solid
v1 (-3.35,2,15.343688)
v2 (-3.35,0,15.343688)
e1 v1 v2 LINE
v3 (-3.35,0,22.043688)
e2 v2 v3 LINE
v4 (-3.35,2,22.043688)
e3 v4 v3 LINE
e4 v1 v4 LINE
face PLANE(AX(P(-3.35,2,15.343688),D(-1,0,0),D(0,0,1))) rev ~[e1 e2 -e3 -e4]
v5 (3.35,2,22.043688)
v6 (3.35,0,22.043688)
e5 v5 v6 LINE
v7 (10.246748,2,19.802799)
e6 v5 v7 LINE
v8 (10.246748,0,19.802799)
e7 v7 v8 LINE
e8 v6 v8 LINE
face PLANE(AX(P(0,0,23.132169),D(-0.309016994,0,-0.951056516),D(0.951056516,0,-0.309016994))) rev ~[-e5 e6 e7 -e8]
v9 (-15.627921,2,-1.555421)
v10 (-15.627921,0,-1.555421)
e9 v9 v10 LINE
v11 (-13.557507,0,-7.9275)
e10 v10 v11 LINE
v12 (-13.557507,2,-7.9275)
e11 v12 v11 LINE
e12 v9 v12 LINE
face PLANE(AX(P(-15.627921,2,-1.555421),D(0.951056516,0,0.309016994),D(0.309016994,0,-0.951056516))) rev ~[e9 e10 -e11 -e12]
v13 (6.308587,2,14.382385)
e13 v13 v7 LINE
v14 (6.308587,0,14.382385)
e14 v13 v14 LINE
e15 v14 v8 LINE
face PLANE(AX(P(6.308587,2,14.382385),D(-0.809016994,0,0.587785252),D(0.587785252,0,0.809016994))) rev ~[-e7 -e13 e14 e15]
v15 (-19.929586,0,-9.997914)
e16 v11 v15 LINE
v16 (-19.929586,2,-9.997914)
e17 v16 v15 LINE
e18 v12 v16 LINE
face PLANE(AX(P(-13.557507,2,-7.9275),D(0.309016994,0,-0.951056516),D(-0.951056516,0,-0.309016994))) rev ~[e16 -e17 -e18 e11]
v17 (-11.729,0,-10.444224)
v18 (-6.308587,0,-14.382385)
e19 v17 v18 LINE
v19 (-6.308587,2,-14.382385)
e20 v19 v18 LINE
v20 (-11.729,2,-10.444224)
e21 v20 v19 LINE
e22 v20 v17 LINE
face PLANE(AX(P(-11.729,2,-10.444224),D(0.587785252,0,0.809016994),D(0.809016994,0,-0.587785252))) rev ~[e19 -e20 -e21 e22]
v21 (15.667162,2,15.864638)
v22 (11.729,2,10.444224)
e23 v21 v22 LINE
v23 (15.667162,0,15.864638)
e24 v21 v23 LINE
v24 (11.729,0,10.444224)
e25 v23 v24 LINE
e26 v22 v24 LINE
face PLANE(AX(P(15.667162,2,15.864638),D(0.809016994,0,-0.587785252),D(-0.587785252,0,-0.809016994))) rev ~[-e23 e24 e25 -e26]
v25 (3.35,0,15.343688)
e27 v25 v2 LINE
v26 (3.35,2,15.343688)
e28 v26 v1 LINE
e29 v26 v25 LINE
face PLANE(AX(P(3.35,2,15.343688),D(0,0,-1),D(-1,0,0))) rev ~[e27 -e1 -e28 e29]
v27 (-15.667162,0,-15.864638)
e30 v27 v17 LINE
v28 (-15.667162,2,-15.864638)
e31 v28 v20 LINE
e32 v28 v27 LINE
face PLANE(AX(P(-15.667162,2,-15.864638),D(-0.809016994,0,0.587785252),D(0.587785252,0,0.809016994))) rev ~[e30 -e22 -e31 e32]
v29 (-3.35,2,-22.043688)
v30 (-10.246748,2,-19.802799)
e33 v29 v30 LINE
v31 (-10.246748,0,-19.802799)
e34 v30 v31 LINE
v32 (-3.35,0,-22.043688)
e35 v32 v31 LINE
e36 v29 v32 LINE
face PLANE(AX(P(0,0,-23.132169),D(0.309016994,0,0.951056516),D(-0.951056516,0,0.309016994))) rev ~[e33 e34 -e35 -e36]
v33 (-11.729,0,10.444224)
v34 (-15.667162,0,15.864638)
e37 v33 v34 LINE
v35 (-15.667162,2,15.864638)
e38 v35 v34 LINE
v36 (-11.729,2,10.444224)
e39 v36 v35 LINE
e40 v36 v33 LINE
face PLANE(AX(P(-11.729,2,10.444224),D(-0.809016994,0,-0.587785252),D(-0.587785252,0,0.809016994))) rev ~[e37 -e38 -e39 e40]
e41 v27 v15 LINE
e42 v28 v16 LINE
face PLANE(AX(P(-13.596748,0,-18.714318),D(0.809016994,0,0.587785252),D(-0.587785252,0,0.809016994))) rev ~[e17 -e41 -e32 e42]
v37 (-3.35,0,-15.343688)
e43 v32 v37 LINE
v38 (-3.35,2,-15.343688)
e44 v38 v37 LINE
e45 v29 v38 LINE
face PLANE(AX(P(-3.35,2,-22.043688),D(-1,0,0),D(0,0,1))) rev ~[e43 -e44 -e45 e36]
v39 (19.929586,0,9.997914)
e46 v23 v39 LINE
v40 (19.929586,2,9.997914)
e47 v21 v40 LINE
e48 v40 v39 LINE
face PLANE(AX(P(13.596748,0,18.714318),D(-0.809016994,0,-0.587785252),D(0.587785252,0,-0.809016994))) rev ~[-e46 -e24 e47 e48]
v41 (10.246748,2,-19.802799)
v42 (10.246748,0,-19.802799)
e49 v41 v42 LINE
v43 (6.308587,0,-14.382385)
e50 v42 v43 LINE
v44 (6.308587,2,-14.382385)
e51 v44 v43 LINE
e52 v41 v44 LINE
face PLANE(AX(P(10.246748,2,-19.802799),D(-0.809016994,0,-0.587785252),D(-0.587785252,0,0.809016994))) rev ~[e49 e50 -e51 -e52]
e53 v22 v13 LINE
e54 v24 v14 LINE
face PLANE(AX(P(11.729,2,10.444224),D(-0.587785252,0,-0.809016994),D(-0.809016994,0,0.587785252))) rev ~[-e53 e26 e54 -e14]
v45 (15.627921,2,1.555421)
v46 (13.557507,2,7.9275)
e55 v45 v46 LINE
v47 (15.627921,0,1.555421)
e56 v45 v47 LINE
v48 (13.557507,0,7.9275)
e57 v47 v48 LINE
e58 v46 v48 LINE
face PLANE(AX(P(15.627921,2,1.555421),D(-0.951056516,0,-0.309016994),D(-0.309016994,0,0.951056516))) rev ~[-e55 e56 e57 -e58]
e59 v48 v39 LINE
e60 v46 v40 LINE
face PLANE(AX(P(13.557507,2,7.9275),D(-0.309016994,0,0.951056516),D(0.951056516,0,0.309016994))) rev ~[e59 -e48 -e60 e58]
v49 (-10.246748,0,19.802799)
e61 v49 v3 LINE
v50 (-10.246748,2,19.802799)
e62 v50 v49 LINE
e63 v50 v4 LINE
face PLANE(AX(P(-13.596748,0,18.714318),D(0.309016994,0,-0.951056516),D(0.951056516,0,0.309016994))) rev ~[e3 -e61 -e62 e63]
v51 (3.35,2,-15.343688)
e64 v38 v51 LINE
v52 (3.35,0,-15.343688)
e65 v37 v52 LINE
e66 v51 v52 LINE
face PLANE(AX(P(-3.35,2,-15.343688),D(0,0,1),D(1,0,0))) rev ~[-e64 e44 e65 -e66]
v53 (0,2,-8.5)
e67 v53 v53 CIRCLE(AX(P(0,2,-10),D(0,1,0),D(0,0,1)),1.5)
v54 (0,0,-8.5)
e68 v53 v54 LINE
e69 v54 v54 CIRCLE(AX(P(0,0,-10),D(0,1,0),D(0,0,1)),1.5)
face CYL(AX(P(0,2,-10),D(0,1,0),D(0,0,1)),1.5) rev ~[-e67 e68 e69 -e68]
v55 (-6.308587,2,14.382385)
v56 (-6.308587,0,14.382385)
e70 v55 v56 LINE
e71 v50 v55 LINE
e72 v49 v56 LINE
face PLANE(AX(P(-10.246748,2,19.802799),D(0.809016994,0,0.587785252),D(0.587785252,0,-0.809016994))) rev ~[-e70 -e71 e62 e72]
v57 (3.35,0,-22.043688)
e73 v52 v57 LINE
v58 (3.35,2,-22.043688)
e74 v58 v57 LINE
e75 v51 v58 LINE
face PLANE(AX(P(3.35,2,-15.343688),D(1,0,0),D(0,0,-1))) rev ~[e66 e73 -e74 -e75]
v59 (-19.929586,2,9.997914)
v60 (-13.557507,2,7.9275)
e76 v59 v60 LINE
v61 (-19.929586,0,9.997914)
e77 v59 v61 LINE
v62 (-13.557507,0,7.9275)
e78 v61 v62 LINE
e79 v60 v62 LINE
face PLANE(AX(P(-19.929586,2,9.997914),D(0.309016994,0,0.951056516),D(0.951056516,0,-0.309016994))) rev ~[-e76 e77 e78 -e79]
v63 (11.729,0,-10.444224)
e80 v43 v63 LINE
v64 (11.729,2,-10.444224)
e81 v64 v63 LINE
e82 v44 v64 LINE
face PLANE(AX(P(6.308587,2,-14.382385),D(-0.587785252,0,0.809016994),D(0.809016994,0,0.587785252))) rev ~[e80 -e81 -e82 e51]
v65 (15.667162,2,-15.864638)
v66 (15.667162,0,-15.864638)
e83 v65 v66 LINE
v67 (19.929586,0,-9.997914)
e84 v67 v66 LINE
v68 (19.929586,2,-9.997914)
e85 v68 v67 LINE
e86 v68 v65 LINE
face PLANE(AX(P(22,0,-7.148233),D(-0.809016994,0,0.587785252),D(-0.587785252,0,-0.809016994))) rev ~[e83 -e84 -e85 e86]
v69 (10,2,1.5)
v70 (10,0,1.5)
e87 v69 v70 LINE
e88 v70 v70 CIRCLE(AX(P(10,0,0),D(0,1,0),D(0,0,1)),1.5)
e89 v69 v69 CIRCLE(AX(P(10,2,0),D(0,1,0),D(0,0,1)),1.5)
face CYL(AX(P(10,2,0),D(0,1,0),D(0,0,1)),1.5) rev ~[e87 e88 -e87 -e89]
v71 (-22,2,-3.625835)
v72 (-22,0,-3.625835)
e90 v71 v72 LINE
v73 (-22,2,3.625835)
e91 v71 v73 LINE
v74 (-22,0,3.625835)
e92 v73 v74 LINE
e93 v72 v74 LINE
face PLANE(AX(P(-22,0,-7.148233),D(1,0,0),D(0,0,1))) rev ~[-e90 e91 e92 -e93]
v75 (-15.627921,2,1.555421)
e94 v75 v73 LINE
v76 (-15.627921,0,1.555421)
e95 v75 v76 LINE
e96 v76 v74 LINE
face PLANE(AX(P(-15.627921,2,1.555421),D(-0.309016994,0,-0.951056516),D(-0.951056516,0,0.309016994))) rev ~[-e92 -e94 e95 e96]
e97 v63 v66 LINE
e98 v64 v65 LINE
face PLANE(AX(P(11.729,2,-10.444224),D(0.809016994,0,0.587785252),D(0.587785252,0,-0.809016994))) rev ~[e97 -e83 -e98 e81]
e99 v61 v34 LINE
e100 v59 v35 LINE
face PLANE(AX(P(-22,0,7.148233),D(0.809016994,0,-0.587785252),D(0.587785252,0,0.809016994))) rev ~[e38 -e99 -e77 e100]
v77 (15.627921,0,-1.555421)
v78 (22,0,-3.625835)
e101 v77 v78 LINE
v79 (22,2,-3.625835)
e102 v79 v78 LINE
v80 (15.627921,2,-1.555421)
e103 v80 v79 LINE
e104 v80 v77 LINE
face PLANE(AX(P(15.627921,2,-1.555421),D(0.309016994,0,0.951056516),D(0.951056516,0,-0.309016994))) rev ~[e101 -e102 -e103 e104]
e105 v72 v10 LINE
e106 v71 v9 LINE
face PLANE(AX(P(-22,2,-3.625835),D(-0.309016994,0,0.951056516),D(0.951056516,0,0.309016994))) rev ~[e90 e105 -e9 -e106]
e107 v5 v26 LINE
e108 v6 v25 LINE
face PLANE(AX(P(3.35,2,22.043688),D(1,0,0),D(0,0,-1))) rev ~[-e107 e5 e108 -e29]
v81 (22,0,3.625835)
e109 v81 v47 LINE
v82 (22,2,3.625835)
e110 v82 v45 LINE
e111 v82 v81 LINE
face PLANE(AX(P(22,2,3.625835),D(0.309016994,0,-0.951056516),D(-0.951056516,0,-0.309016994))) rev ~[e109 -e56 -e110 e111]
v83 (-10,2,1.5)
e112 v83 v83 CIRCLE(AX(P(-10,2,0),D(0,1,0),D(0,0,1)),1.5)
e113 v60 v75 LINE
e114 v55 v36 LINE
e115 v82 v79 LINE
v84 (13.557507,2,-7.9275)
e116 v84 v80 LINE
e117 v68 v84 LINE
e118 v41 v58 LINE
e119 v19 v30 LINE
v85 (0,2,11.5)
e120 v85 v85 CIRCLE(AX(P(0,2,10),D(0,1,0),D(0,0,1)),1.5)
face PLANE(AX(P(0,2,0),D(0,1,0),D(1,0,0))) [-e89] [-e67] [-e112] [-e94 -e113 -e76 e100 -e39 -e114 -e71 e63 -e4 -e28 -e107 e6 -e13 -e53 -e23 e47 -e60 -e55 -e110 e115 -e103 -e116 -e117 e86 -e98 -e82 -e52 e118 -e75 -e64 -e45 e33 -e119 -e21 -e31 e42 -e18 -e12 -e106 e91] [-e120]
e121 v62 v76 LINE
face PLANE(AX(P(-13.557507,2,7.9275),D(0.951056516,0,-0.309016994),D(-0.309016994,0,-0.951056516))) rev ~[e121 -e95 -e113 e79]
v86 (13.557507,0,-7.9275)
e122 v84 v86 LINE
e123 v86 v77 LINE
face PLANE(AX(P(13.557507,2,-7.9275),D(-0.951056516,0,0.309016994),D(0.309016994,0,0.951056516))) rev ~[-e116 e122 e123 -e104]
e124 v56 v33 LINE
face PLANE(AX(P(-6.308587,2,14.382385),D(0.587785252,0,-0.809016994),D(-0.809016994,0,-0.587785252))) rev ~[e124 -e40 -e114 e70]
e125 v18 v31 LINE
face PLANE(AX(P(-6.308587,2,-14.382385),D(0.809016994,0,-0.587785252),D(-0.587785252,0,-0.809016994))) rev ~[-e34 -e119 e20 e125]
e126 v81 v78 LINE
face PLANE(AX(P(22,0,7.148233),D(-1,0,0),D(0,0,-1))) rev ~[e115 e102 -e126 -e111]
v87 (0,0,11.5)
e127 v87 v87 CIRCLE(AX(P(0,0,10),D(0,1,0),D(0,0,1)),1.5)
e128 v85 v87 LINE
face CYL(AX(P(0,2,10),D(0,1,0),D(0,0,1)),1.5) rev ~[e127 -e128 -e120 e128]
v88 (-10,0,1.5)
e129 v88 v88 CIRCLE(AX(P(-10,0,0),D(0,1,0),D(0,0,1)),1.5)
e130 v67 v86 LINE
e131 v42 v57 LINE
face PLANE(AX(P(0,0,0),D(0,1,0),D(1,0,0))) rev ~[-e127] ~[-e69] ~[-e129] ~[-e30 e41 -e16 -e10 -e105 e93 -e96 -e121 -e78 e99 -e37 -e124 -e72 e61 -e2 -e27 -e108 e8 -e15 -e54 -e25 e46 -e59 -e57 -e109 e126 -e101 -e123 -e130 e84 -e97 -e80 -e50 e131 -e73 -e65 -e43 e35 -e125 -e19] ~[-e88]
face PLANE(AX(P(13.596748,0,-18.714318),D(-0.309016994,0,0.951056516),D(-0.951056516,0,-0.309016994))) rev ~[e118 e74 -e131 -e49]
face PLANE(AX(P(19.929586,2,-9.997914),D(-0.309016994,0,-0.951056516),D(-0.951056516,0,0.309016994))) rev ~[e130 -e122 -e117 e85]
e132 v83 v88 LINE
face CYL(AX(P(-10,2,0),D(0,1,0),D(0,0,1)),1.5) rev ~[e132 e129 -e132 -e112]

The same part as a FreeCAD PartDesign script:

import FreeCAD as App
import Part
import Sketcher
Q = App.Units.Quantity


def add_polygon(sketch, points):
    """Adds a closed chain of lines whose ends are joined by coincident constraints."""
    first, n = sketch.GeometryCount, len(points)
    for a, b in zip(points, points[1:] + points[:1]):
        sketch.addGeometry(Part.LineSegment(App.Vector(*a, 0), App.Vector(*b, 0)), False)
    for i in range(n):
        sketch.addConstraint(Sketcher.Constraint("Coincident", first + i, 2, first + (i + 1) % n, 1))

doc = App.newDocument("Part")
params = doc.addObject("Spreadsheet::Sheet", "Params")
for row, (alias, value) in enumerate([
    ("pad1_length", "2 mm"),
    ("sketch2_width", "6.7 mm"),
    ("pocket1_length", "2 mm"),
    ("sketch3_diameter", "3 mm"),
    ("pocket2_length", "2 mm"),
], start=1):
    params.set(f"A{row}", alias)
    params.set(f"B{row}", "=" + value)
    params.setAlias(f"B{row}", alias)

body = doc.addObject("PartDesign::Body", "Body")

sketch1 = body.newObject("Sketcher::SketchObject", "Sketch")
sketch1.AttachmentSupport = (doc.getObject("XZ_Plane"), [""])
sketch1.MapMode = "FlatFace"
add_polygon(sketch1, [(0, -23), (-14, -19), (-22, -7), (-22, 7), (-14, 19), (0, 23), (14, 19), (22, 7), (22, -7), (14, -19)])
sketch1.addConstraint([
    Sketcher.Constraint("Vertical", 2),
    Sketcher.Constraint("Vertical", 7),
    Sketcher.Constraint("Symmetric", 0, 2, 5, 2, -1, 1),
    Sketcher.Constraint("Symmetric", 1, 2, 6, 2, -1, 1),
    Sketcher.Constraint("Symmetric", 3, 2, 8, 2, -1, 1),
    Sketcher.Constraint("Symmetric", 4, 2, 9, 2, -1, 1),
    Sketcher.Constraint("Symmetric", 3, 2, 5, 2, -2),
    Sketcher.Constraint("PointOnObject", 4, 2, -2),
    Sketcher.Constraint("Parallel", 3, 8),
    Sketcher.Constraint("Horizontal", 2, 2, 6, 2),
    Sketcher.Constraint("Equal", 0, 1),
    Sketcher.Constraint("Angle", 0, Q("162 deg")),
    Sketcher.Constraint("Angle", 1, Q("126 deg")),
    Sketcher.Constraint("DistanceX", 1, 2, -1, 1, Q("22 mm")),
    Sketcher.Constraint("DistanceY", 2, 1, 2, 2, Q("14.296467 mm")),
])
pad1 = body.newObject("PartDesign::Pad", "Pad")
pad1.Profile = sketch1
pad1.setExpression("Length", "Params.pad1_length")
pad1.Reversed = True

sketch2 = body.newObject("Sketcher::SketchObject", "Sketch001")
sketch2.AttachmentSupport = (doc.getObject("XZ_Plane"), [""])
sketch2.MapMode = "FlatFace"
sketch2.AttachmentOffset = App.Placement(App.Vector(0, 0, -2), App.Rotation())
add_polygon(sketch2, [(0, -23.1), (-3.4, -22), (-3.4, -15.3), (3.4, -15.3), (3.4, -22)])
add_polygon(sketch2, [(11.7, -10.4), (15.7, -15.9), (13.6, -18.7), (10.2, -19.8), (6.3, -14.4)])
add_polygon(sketch2, [(15.6, -1.6), (22, -3.6), (22, -7.1), (19.9, -10), (13.6, -7.9)])
add_polygon(sketch2, [(13.6, 7.9), (19.9, 10), (22, 7.1), (22, 3.6), (15.6, 1.6)])
add_polygon(sketch2, [(6.3, 14.4), (10.2, 19.8), (13.6, 18.7), (15.7, 15.9), (11.7, 10.4)])
add_polygon(sketch2, [(-3.4, 15.3), (-3.4, 22), (0, 23.1), (3.4, 22), (3.4, 15.3)])
add_polygon(sketch2, [(-11.7, 10.4), (-15.7, 15.9), (-13.6, 18.7), (-10.2, 19.8), (-6.3, 14.4)])
add_polygon(sketch2, [(-15.6, 1.6), (-22, 3.6), (-22, 7.1), (-19.9, 10), (-13.6, 7.9)])
add_polygon(sketch2, [(-13.6, -7.9), (-19.9, -10), (-22, -7.1), (-22, -3.6), (-15.6, -1.6)])
add_polygon(sketch2, [(-6.3, -14.4), (-10.2, -19.8), (-13.6, -18.7), (-15.7, -15.9), (-11.7, -10.4)])
sketch2.addConstraint([
    Sketcher.Constraint("Vertical", 1),
    Sketcher.Constraint("Horizontal", 2),
    Sketcher.Constraint("Vertical", 3),
    Sketcher.Constraint("Vertical", 11),
    Sketcher.Constraint("Vertical", 17),
    Sketcher.Constraint("Vertical", 25),
    Sketcher.Constraint("Vertical", 28),
    Sketcher.Constraint("Horizontal", 29),
    Sketcher.Constraint("Vertical", 36),
    Sketcher.Constraint("Vertical", 42),
    Sketcher.Constraint("Symmetric", 3, 2, 25, 2, -1, 1),
    Sketcher.Constraint("Symmetric", 4, 2, 26, 2, -1, 1),
    Sketcher.Constraint("Symmetric", 0, 2, 27, 2, -1, 1),
    Sketcher.Constraint("Symmetric", 5, 2, 30, 2, -1, 1),
    Sketcher.Constraint("Symmetric", 6, 2, 31, 2, -1, 1),
    Sketcher.Constraint("Symmetric", 7, 2, 32, 2, -1, 1),
    Sketcher.Constraint("Symmetric", 8, 2, 33, 2, -1, 1),
    Sketcher.Constraint("Symmetric", 9, 2, 34, 2, -1, 1),
    Sketcher.Constraint("Symmetric", 10, 2, 35, 2, -1, 1),
    Sketcher.Constraint("Symmetric", 12, 2, 37, 2, -1, 1),
    Sketcher.Constraint("Symmetric", 13, 2, 38, 2, -1, 1),
    Sketcher.Constraint("Symmetric", 14, 2, 39, 2, -1, 1),
    Sketcher.Constraint("Symmetric", 15, 2, 40, 2, -1, 1),
    Sketcher.Constraint("Symmetric", 16, 2, 41, 2, -1, 1),
    Sketcher.Constraint("Symmetric", 18, 2, 43, 2, -1, 1),
    Sketcher.Constraint("Symmetric", 19, 2, 44, 2, -1, 1),
    Sketcher.Constraint("Symmetric", 20, 2, 45, 2, -1, 1),
    Sketcher.Constraint("Symmetric", 21, 2, 46, 2, -1, 1),
    Sketcher.Constraint("Symmetric", 22, 2, 47, 2, -1, 1),
    Sketcher.Constraint("Symmetric", 23, 2, 48, 2, -1, 1),
    Sketcher.Constraint("Symmetric", 24, 2, 49, 2, -1, 1),
    Sketcher.Constraint("Symmetric", 0, 2, 3, 2, -2),
    Sketcher.Constraint("Symmetric", 22, 2, 30, 2, -2),
    Sketcher.Constraint("Symmetric", 21, 2, 31, 2, -2),
    Sketcher.Constraint("Symmetric", 20, 2, 32, 2, -2),
    Sketcher.Constraint("Symmetric", 24, 2, 33, 2, -2),
    Sketcher.Constraint("Symmetric", 23, 2, 34, 2, -2),
    Sketcher.Constraint("Symmetric", 17, 2, 35, 2, -2),
    Sketcher.Constraint("Symmetric", 15, 2, 37, 2, -2),
    Sketcher.Constraint("Symmetric", 19, 2, 38, 2, -2),
    Sketcher.Constraint("Symmetric", 18, 2, 39, 2, -2),
    Sketcher.Constraint("PointOnObject", 4, 2, -2),
    Sketcher.Constraint("Parallel", 4, 7),
    Sketcher.Constraint("Parallel", 5, 8),
    Sketcher.Constraint("Perpendicular", 8, 9),
    Sketcher.Constraint("Parallel", 0, 10),
    Sketcher.Constraint("Parallel", 6, 12),
    Sketcher.Constraint("Parallel", 10, 13),
    Sketcher.Constraint("Perpendicular", 13, 14),
    Sketcher.Constraint("Perpendicular", 9, 16),
    Sketcher.Constraint("Parallel", 12, 20),
    Sketcher.Constraint("Parallel", 31, 37),
    Sketcher.Constraint("Parallel", 40, 43),
    Sketcher.Constraint("Equal", 29, 1),
    Sketcher.Constraint("Equal", 3, 25),
    Sketcher.Constraint("Equal", 4, 6),
    Sketcher.Constraint("Equal", 6, 7),
    Sketcher.Constraint("Equal", 5, 8),
    Sketcher.Constraint("Equal", 8, 9),
    Sketcher.Constraint("Equal", 9, 10),
    Sketcher.Constraint("Equal", 7, 12),
    Sketcher.Constraint("Equal", 10, 13),
    Sketcher.Constraint("Equal", 13, 14),
    Sketcher.Constraint("DistanceX", 2, 1, 2, 2, Q("6.7 mm")),
    Sketcher.Constraint("DistanceX", -1, 1, 10, 2, Q("22 mm")),
    Sketcher.Constraint("DistanceX", -1, 1, 9, 2, Q("11.729 mm")),
    Sketcher.Constraint("DistanceY", 7, 2, -1, 1, Q("19.802799 mm")),
    Sketcher.Constraint("DistanceY", 13, 2, -1, 1, Q("7.9275 mm")),
    Sketcher.Constraint("DistanceY", 4, 2, -1, 1, Q("23.132169 mm")),
])
sketch2.setExpression("Constraints[113]", "Params.sketch2_width")
pocket1 = body.newObject("PartDesign::Pocket", "Pocket")
pocket1.Profile = sketch2
pocket1.setExpression("Length", "Params.pocket1_length")
pocket1.Reversed = True

sketch3 = body.newObject("Sketcher::SketchObject", "Sketch002")
sketch3.AttachmentSupport = (doc.getObject("XZ_Plane"), [""])
sketch3.MapMode = "FlatFace"
sketch3.AttachmentOffset = App.Placement(App.Vector(0, 0, -2), App.Rotation())
sketch3.addGeometry([
    Part.Circle(App.Vector(0, -10, 0), App.Vector(0, 0, 1), 1.5),
    Part.Circle(App.Vector(10, 0, 0), App.Vector(0, 0, 1), 1.5),
    Part.Circle(App.Vector(0, 10, 0), App.Vector(0, 0, 1), 1.5),
    Part.Circle(App.Vector(-10, 0, 0), App.Vector(0, 0, 1), 1.5),
], False)
sketch3.addConstraint([
    Sketcher.Constraint("Equal", 0, 1),
    Sketcher.Constraint("Equal", 1, 2),
    Sketcher.Constraint("Equal", 2, 3),
    Sketcher.Constraint("Symmetric", 0, 3, 2, 3, -1, 1),
    Sketcher.Constraint("Symmetric", 1, 3, 3, 3, -1, 1),
    Sketcher.Constraint("PointOnObject", 0, 3, -2),
    Sketcher.Constraint("PointOnObject", 1, 3, -1),
    Sketcher.Constraint("Diameter", 0, Q("3 mm")),
    Sketcher.Constraint("DistanceY", 0, 3, -1, 1, Q("10 mm")),
    Sketcher.Constraint("DistanceX", -1, 1, 1, 3, Q("10 mm")),
])
sketch3.setExpression("Constraints[7]", "Params.sketch3_diameter")
pocket2 = body.newObject("PartDesign::Pocket", "Pocket001")
pocket2.Profile = sketch3
pocket2.setExpression("Length", "Params.pocket2_length")
pocket2.Reversed = True

doc.recompute()
